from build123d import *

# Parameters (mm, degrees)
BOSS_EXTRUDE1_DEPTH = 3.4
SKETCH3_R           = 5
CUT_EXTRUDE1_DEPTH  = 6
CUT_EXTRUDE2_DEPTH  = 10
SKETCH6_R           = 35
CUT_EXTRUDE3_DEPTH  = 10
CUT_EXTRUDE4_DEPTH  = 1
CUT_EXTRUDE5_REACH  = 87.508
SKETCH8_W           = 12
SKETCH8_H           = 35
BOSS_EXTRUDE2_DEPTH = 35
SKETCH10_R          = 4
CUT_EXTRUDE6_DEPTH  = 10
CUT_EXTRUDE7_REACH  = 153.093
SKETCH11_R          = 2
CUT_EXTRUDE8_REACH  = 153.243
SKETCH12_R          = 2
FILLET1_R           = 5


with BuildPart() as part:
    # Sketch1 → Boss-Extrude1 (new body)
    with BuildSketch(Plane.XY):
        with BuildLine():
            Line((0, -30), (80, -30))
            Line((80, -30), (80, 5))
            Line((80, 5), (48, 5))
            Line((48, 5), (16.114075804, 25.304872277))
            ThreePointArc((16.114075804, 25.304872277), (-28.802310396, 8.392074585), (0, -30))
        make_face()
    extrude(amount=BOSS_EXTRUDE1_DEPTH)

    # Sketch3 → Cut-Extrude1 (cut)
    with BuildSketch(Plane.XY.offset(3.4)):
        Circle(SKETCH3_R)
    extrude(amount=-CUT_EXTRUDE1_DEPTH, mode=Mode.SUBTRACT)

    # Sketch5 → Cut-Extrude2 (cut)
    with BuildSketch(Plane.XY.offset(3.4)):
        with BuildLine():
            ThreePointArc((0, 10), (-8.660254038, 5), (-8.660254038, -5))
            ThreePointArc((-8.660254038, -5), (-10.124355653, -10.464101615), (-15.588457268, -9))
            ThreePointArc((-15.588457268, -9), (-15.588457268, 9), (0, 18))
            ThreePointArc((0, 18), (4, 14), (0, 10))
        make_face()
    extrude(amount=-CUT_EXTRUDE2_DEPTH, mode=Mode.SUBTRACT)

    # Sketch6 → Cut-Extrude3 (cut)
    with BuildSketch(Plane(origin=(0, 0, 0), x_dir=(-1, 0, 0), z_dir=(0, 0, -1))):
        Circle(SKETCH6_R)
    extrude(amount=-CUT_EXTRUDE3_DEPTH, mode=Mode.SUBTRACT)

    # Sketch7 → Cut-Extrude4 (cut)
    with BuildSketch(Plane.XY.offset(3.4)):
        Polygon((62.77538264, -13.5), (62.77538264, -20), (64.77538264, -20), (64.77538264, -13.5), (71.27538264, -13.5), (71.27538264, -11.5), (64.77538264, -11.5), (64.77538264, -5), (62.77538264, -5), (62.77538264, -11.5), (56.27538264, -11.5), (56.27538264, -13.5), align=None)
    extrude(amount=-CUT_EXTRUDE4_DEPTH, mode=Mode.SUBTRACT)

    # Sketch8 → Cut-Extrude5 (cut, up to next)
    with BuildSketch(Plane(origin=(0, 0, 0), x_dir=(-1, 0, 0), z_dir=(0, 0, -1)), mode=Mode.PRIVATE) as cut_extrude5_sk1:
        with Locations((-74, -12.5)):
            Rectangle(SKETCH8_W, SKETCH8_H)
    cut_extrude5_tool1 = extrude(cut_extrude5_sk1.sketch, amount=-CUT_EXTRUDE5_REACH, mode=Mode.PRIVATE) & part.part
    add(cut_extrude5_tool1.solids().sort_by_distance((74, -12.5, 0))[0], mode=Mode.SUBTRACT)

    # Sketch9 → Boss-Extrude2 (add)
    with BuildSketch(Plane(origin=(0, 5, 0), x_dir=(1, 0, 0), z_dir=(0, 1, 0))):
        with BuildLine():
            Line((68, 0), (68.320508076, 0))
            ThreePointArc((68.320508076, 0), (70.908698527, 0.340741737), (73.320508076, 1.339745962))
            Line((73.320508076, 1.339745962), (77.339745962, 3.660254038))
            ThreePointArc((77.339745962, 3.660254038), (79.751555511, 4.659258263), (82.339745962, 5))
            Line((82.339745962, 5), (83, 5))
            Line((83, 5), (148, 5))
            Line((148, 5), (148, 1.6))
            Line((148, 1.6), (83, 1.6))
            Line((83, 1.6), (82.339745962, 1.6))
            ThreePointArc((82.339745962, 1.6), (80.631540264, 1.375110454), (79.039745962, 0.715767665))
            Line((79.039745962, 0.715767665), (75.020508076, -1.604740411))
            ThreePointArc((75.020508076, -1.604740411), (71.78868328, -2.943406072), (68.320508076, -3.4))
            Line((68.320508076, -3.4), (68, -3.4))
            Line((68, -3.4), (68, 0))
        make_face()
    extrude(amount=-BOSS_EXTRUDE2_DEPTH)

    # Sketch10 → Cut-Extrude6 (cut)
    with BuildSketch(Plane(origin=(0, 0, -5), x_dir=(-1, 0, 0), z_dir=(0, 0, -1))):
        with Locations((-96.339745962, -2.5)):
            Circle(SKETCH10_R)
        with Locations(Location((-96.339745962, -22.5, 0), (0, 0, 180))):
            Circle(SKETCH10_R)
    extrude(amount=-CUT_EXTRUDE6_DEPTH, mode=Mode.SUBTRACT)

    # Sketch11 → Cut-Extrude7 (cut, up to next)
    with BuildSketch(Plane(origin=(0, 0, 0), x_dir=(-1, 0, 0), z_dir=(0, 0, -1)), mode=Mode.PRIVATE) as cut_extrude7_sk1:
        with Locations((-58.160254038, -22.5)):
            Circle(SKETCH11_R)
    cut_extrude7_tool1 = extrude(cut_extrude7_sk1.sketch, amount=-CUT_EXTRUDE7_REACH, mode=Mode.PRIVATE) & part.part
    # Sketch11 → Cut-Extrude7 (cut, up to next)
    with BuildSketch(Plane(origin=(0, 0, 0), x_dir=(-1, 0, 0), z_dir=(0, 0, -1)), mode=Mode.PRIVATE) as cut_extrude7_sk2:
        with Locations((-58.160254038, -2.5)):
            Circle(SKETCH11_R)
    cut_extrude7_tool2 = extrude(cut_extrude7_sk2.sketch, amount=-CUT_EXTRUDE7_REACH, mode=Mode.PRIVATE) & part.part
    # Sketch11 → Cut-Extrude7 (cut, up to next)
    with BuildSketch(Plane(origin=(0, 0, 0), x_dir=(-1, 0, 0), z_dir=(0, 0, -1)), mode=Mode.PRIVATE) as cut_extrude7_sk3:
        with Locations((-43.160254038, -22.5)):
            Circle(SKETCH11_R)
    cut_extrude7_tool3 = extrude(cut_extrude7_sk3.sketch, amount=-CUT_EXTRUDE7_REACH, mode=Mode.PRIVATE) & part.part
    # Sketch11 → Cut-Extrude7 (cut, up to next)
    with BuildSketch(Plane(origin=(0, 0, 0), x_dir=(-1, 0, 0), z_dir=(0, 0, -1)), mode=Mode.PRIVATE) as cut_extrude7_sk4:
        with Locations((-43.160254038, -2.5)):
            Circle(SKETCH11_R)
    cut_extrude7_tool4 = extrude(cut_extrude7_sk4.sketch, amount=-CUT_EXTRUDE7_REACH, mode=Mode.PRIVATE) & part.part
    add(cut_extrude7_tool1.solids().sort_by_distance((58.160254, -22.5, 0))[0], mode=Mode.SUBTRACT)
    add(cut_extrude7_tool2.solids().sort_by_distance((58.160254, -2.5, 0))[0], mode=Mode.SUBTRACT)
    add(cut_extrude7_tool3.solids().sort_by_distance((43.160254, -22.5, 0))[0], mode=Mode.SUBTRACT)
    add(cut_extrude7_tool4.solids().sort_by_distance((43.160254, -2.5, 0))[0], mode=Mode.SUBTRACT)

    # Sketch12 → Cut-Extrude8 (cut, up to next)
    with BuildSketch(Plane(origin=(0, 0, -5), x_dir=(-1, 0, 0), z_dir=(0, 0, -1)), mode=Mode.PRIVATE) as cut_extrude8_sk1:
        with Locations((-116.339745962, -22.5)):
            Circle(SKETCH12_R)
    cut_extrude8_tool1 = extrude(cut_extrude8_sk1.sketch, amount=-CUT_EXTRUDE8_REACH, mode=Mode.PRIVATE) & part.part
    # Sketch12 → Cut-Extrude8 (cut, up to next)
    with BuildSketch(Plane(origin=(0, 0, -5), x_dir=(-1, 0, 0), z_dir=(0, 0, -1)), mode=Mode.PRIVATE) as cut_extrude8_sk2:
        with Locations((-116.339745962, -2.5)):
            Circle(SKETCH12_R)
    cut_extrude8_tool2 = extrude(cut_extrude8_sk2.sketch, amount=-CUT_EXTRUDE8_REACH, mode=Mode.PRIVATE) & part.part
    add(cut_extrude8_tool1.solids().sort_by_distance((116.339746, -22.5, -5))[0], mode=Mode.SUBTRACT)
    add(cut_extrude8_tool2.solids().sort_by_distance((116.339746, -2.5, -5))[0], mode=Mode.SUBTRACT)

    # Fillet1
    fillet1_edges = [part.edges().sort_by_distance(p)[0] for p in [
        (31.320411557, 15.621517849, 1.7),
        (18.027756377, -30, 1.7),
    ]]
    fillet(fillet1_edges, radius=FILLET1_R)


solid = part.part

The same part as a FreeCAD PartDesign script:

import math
import FreeCAD as App
import Part
import Sketcher

V = App.Vector
Q = App.Units.Quantity


def edges_at(feature, points):
    """Names of the edges that pass closest to the given points."""
    edges = feature.Shape.Edges
    near = lambda p: min(range(len(edges)), key=lambda i: edges[i].distToShape(Part.Vertex(*p))[0])
    return sorted({f"Edge{near(p) + 1}" for p in points})

doc = App.newDocument("Part")
body = doc.addObject("PartDesign::Body", "Body")

sketch1 = body.newObject("Sketcher::SketchObject", "Sketch")
sketch1.AttachmentSupport = (doc.getObject("XY_Plane"), [""])
sketch1.MapMode = "FlatFace"
sketch1.addGeometry([
    Part.LineSegment(V(0, -30, 0), V(80, -30, 0)),
    Part.LineSegment(V(80, -30, 0), V(80, 5, 0)),
    Part.LineSegment(V(80, 5, 0), V(48, 5, 0)),
    Part.LineSegment(V(48, 5, 0), V(16, 25, 0)),
    Part.ArcOfCircle(Part.Circle(V(0, 0, 0), V(0, 0, 1), 30), math.radians(58), math.radians(270)),
], False)
sketch1.addConstraint([
    Sketcher.Constraint("Coincident", 0, 2, 1, 1),
    Sketcher.Constraint("Coincident", 1, 2, 2, 1),
    Sketcher.Constraint("Coincident", 2, 2, 3, 1),
    Sketcher.Constraint("Tangent", 3, 2, 4, 1),
    Sketcher.Constraint("Tangent", 4, 2, 0, 1),
    Sketcher.Constraint("Horizontal", 0),
    Sketcher.Constraint("Vertical", 1),
    Sketcher.Constraint("Horizontal", 2),
    Sketcher.Constraint("Coincident", 4, 3, -1, 1),
    Sketcher.Constraint("Radius", 4, 30.0),
    Sketcher.Constraint("DistanceX", 0, 1, 0, 2, 80.0),
    Sketcher.Constraint("DistanceX", 2, 2, 2, 1, 32.0),
    Sketcher.Constraint("DistanceY", 1, 1, 1, 2, 35.0),
])
pad1 = body.newObject("PartDesign::Pad", "Pad")
pad1.Profile = sketch1
pad1.Length = 3.4

sketch2 = body.newObject("Sketcher::SketchObject", "Sketch001")
sketch2.AttachmentSupport = (doc.getObject("XY_Plane"), [""])
sketch2.MapMode = "FlatFace"
sketch2.AttachmentOffset = App.Placement(V(0, 0, 3.4), App.Rotation())
sketch2.addGeometry(Part.Circle(V(0, 0, 0), V(0, 0, 1), 5), False)
sketch2.addConstraint([
    Sketcher.Constraint("Coincident", 0, 3, -1, 1),
    Sketcher.Constraint("Diameter", 0, 10.0),
])
pocket1 = body.newObject("PartDesign::Pocket", "Pocket")
pocket1.Profile = sketch2
pocket1.Length = 6

sketch3 = body.newObject("Sketcher::SketchObject", "Sketch002")
sketch3.AttachmentSupport = (doc.getObject("XY_Plane"), [""])
sketch3.MapMode = "FlatFace"
sketch3.AttachmentOffset = App.Placement(V(0, 0, 3.4), App.Rotation())
sketch3.addGeometry([
    Part.ArcOfCircle(Part.Circle(V(0, 0, 0), V(0, 0, 1), 10), math.radians(90), math.radians(210)),
    Part.ArcOfCircle(Part.Circle(V(0, 14, 0), V(0, 0, 1), 4), math.radians(-90), math.radians(90)),
    Part.ArcOfCircle(Part.Circle(V(0, 0, 0), V(0, 0, 1), 18), math.radians(90), math.radians(210)),
    Part.ArcOfCircle(Part.Circle(V(-12.1, -7, 0), V(0, 0, 1), 4), math.radians(-150), math.radians(30)),
], False)
sketch3.addConstraint([
    Sketcher.Constraint("Tangent", 0, 1, 1, 1),
    Sketcher.Constraint("Tangent", 1, 2, 2, 1),
    Sketcher.Constraint("Tangent", 2, 2, 3, 1),
    Sketcher.Constraint("Tangent", 3, 2, 0, 2),
    Sketcher.Constraint("Coincident", 0, 3, -1, 1),
    Sketcher.Constraint("Coincident", 2, 3, -1, 1),
    Sketcher.Constraint("PointOnObject", 1, 3, -2),
    Sketcher.Constraint("Radius", 0, 10.0),
    Sketcher.Constraint("Radius", 1, 4.0),
    Sketcher.Constraint("DistanceY", 3, 3, -1, 1, 7.0),
])
pocket2 = body.newObject("PartDesign::Pocket", "Pocket001")
pocket2.Profile = sketch3
pocket2.Length = 10

sketch4 = body.newObject("Sketcher::SketchObject", "Sketch003")
sketch4.AttachmentSupport = (doc.getObject("XY_Plane"), [""])
sketch4.MapMode = "FlatFace"
sketch4.addGeometry(Part.Circle(V(0, 0, 0), V(0, 0, 1), 35), False)
sketch4.addConstraint([
    Sketcher.Constraint("Coincident", 0, 3, -1, 1),
    Sketcher.Constraint("Diameter", 0, 70.0),
])
pocket3 = body.newObject("PartDesign::Pocket", "Pocket002")
pocket3.Profile = sketch4
pocket3.Length = 10
pocket3.Reversed = True

sketch5 = body.newObject("Sketcher::SketchObject", "Sketch004")
sketch5.AttachmentSupport = (doc.getObject("XY_Plane"), [""])
sketch5.MapMode = "FlatFace"
sketch5.AttachmentOffset = App.Placement(V(0, 0, 3.4), App.Rotation())
sketch5.addGeometry([
    Part.LineSegment(V(62.8, -13.5, 0), V(62.8, -20, 0)),
    Part.LineSegment(V(62.8, -20, 0), V(64.8, -20, 0)),
    Part.LineSegment(V(64.8, -20, 0), V(64.8, -13.5, 0)),
    Part.LineSegment(V(64.8, -13.5, 0), V(71.3, -13.5, 0)),
    Part.LineSegment(V(71.3, -13.5, 0), V(71.3, -11.5, 0)),
    Part.LineSegment(V(71.3, -11.5, 0), V(64.8, -11.5, 0)),
    Part.LineSegment(V(64.8, -11.5, 0), V(64.8, -5, 0)),
    Part.LineSegment(V(64.8, -5, 0), V(62.8, -5, 0)),
    Part.LineSegment(V(62.8, -5, 0), V(62.8, -11.5, 0)),
    Part.LineSegment(V(62.8, -11.5, 0), V(56.3, -11.5, 0)),
    Part.LineSegment(V(56.3, -11.5, 0), V(56.3, -13.5, 0)),
    Part.LineSegment(V(56.3, -13.5, 0), V(62.8, -13.5, 0)),
], False)
sketch5.addConstraint([
    Sketcher.Constraint("Coincident", 0, 2, 1, 1),
    Sketcher.Constraint("Coincident", 1, 2, 2, 1),
    Sketcher.Constraint("Coincident", 2, 2, 3, 1),
    Sketcher.Constraint("Coincident", 3, 2, 4, 1),
    Sketcher.Constraint("Coincident", 4, 2, 5, 1),
    Sketcher.Constraint("Coincident", 5, 2, 6, 1),
    Sketcher.Constraint("Coincident", 6, 2, 7, 1),
    Sketcher.Constraint("Coincident", 7, 2, 8, 1),
    Sketcher.Constraint("Coincident", 8, 2, 9, 1),
    Sketcher.Constraint("Coincident", 9, 2, 10, 1),
    Sketcher.Constraint("Coincident", 10, 2, 11, 1),
    Sketcher.Constraint("Coincident", 11, 2, 0, 1),
    Sketcher.Constraint("Vertical", 0),
    Sketcher.Constraint("Horizontal", 1),
    Sketcher.Constraint("Vertical", 2),
    Sketcher.Constraint("Horizontal", 3),
    Sketcher.Constraint("Vertical", 4),
    Sketcher.Constraint("Horizontal", 5),
    Sketcher.Constraint("Vertical", 6),
    Sketcher.Constraint("Horizontal", 7),
    Sketcher.Constraint("Vertical", 8),
    Sketcher.Constraint("Horizontal", 9),
    Sketcher.Constraint("Vertical", 10),
    Sketcher.Constraint("Horizontal", 11),
    Sketcher.Constraint("Horizontal", 5, 2, 8, 2),
    Sketcher.Constraint("Horizontal", 3, 2, 10, 2),
    Sketcher.Constraint("Vertical", 2, 2, 5, 2),
    Sketcher.Constraint("Vertical", 0, 2, 7, 2),
    Sketcher.Constraint("Equal", 5, 9),
    Sketcher.Constraint("Equal", 11, 0),
    Sketcher.Constraint("Equal", 7, 4),
    Sketcher.Constraint("Equal", 2, 6),
    Sketcher.Constraint("DistanceX", 1, 1, 1, 2, 2.0),
    Sketcher.Constraint("DistanceX", 3, 1, 3, 2, 6.5),
    Sketcher.Constraint("DistanceY", 0, 2, -1, 1, 20.0),
    Sketcher.Constraint("DistanceX", -1, 1, 0, 2, 62.775383),
])
pocket4 = body.newObject("PartDesign::Pocket", "Pocket003")
pocket4.Profile = sketch5
pocket4.Length = 1

sketch6 = body.newObject("Sketcher::SketchObject", "Sketch005")
sketch6.AttachmentSupport = (doc.getObject("XY_Plane"), [""])
sketch6.MapMode = "FlatFace"
sketch6.addGeometry([
    Part.LineSegment(V(80, 5, 0), V(80, -30, 0)),
    Part.LineSegment(V(80, -30, 0), V(68, -30, 0)),
    Part.LineSegment(V(68, -30, 0), V(68, 5, 0)),
    Part.LineSegment(V(68, 5, 0), V(80, 5, 0)),
], False)
sketch6.addConstraint([
    Sketcher.Constraint("Coincident", 0, 2, 1, 1),
    Sketcher.Constraint("Coincident", 1, 2, 2, 1),
    Sketcher.Constraint("Coincident", 2, 2, 3, 1),
    Sketcher.Constraint("Coincident", 3, 2, 0, 1),
    Sketcher.Constraint("Vertical", 0),
    Sketcher.Constraint("Horizontal", 1),
    Sketcher.Constraint("Vertical", 2),
    Sketcher.Constraint("Horizontal", 3),
    Sketcher.Constraint("DistanceX", 1, 2, 1, 1, 12.0),
    Sketcher.Constraint("DistanceY", 0, 2, 0, 1, 35.0),
    Sketcher.Constraint("DistanceX", -1, 1, 0, 2, 80.0),
    Sketcher.Constraint("DistanceY", 0, 2, -1, 1, 30.0),
])
pocket5 = body.newObject("PartDesign::Pocket", "Pocket004")
pocket5.Profile = sketch6
pocket5.Type = "UpToFirst"
pocket5.Reversed = True

sketch7 = body.newObject("Sketcher::SketchObject", "Sketch006")
sketch7.AttachmentSupport = (doc.getObject("XZ_Plane"), [""])
sketch7.MapMode = "FlatFace"
sketch7.AttachmentOffset = App.Placement(V(0, 0, -5), App.Rotation())
sketch7.addGeometry([
    Part.LineSegment(V(68.32, 0, 0), V(68, 0, 0)),
    Part.LineSegment(V(68, 0, 0), V(68, 3.4, 0)),
    Part.LineSegment(V(68, 3.4, 0), V(68.32, 3.4, 0)),
    Part.ArcOfCircle(Part.Circle(V(68.32, -10, 0), V(0, 0, 1), 13.4), math.radians(60), math.radians(90)),
    Part.LineSegment(V(75.02, 1.6, 0), V(79.04, -0.72, 0)),
    Part.ArcOfCircle(Part.Circle(V(82.34, 5, 0), V(0, 0, 1), 6.6), math.radians(-120), math.radians(-90)),
    Part.LineSegment(V(82.34, -1.6, 0), V(148, -1.6, 0)),
    Part.LineSegment(V(148, -1.6, 0), V(148, -5, 0)),
    Part.LineSegment(V(148, -5, 0), V(82.34, -5, 0)),
    Part.ArcOfCircle(Part.Circle(V(82.34, 5, 0), V(0, 0, 1), 10), math.radians(-120), math.radians(-90)),
    Part.LineSegment(V(77.34, -3.66, 0), V(73.32, -1.34, 0)),
    Part.ArcOfCircle(Part.Circle(V(68.32, -10, 0), V(0, 0, 1), 10), math.radians(60), math.radians(90)),
], False)
sketch7.addConstraint([
    Sketcher.Constraint("Coincident", 0, 2, 1, 1),
    Sketcher.Constraint("Coincident", 1, 2, 2, 1),
    Sketcher.Constraint("Tangent", 2, 2, 3, 2),
    Sketcher.Constraint("Tangent", 3, 1, 4, 1),
    Sketcher.Constraint("Tangent", 4, 2, 5, 1),
    Sketcher.Constraint("Tangent", 5, 2, 6, 1),
    Sketcher.Constraint("Coincident", 6, 2, 7, 1),
    Sketcher.Constraint("Coincident", 7, 2, 8, 1),
    Sketcher.Constraint("Tangent", 8, 2, 9, 2),
    Sketcher.Constraint("Tangent", 9, 1, 10, 1),
    Sketcher.Constraint("Tangent", 10, 2, 11, 1),
    Sketcher.Constraint("Tangent", 11, 2, 0, 1),
    Sketcher.Constraint("Horizontal", 0),
    Sketcher.Constraint("Vertical", 1),
    Sketcher.Constraint("Horizontal", 2),
    Sketcher.Constraint("Horizontal", 6),
    Sketcher.Constraint("Vertical", 7),
    Sketcher.Constraint("Horizontal", 8),
    Sketcher.Constraint("Coincident", 9, 3, 5, 3),
    Sketcher.Constraint("Coincident", 11, 3, 3, 3),
    Sketcher.Constraint("Equal", 9, 11),
    Sketcher.Constraint("PointOnObject", 0, 2, -1),
    Sketcher.Constraint("Parallel", 4, 10),
    Sketcher.Constraint("Radius", 9, 10.0),
    Sketcher.Constraint("Radius", 3, 13.4),
    Sketcher.Constraint("Angle", 4, Q("-30 deg")),
    Sketcher.Constraint("DistanceY", -1, 1, 5, 3, 5.0),
    Sketcher.Constraint("DistanceX", -1, 1, 0, 2, 68.0),
    Sketcher.Constraint("DistanceX", -1, 1, 6, 2, 148.0),
    Sketcher.Constraint("DistanceX", 0, 2, 0, 1, 0.320508),
])
pad2 = body.newObject("PartDesign::Pad", "Pad001")
pad2.Profile = sketch7
pad2.Length = 35

sketch8 = body.newObject("Sketcher::SketchObject", "Sketch007")
sketch8.AttachmentSupport = (doc.getObject("XY_Plane"), [""])
sketch8.MapMode = "FlatFace"
sketch8.AttachmentOffset = App.Placement(V(0, 0, -5), App.Rotation())
sketch8.addGeometry([
    Part.Circle(V(96.3, -2.5, 0), V(0, 0, 1), 4),
    Part.Circle(V(96.3, -22.5, 0), V(0, 0, 1), 4),
], False)
sketch8.addConstraint([
    Sketcher.Constraint("Equal", 0, 1),
    Sketcher.Constraint("Vertical", 0, 3, 1, 3),
    Sketcher.Constraint("Diameter", 0, 8.0),
    Sketcher.Constraint("DistanceY", 1, 3, 0, 3, 20.0),
    Sketcher.Constraint("DistanceY", 0, 3, -1, 1, 2.5),
    Sketcher.Constraint("DistanceX", -1, 1, 0, 3, 96.339746),
])
pocket6 = body.newObject("PartDesign::Pocket", "Pocket005")
pocket6.Profile = sketch8
pocket6.Length = 10
pocket6.Reversed = True

sketch9 = body.newObject("Sketcher::SketchObject", "Sketch008")
sketch9.AttachmentSupport = (doc.getObject("XY_Plane"), [""])
sketch9.MapMode = "FlatFace"
sketch9.addGeometry(Part.Circle(V(58.2, -22.5, 0), V(0, 0, 1), 2), False)
sketch9.addConstraint([
    Sketcher.Constraint("Diameter", 0, 4.0),
    Sketcher.Constraint("DistanceY", 0, 3, -1, 1, 22.5),
    Sketcher.Constraint("DistanceX", -1, 1, 0, 3, 58.160254),
])
pocket7 = body.newObject("PartDesign::Pocket", "Pocket006")
pocket7.Profile = sketch9
pocket7.Type = "UpToFirst"
pocket7.Reversed = True

sketch10 = body.newObject("Sketcher::SketchObject", "Sketch009")
sketch10.AttachmentSupport = (doc.getObject("XY_Plane"), [""])
sketch10.MapMode = "FlatFace"
sketch10.addGeometry(Part.Circle(V(58.2, -2.5, 0), V(0, 0, 1), 2), False)
sketch10.addConstraint([
    Sketcher.Constraint("Diameter", 0, 4.0),
    Sketcher.Constraint("DistanceY", 0, 3, -1, 1, 2.5),
    Sketcher.Constraint("DistanceX", -1, 1, 0, 3, 58.160254),
])
pocket8 = body.newObject("PartDesign::Pocket", "Pocket007")
pocket8.Profile = sketch10
pocket8.Type = "UpToFirst"
pocket8.Reversed = True

sketch11 = body.newObject("Sketcher::SketchObject", "Sketch010")
sketch11.AttachmentSupport = (doc.getObject("XY_Plane"), [""])
sketch11.MapMode = "FlatFace"
sketch11.addGeometry(Part.Circle(V(43.2, -22.5, 0), V(0, 0, 1), 2), False)
sketch11.addConstraint([
    Sketcher.Constraint("Diameter", 0, 4.0),
    Sketcher.Constraint("DistanceY", 0, 3, -1, 1, 22.5),
    Sketcher.Constraint("DistanceX", -1, 1, 0, 3, 43.160254),
])
pocket9 = body.newObject("PartDesign::Pocket", "Pocket008")
pocket9.Profile = sketch11
pocket9.Type = "UpToFirst"
pocket9.Reversed = True

sketch12 = body.newObject("Sketcher::SketchObject", "Sketch011")
sketch12.AttachmentSupport = (doc.getObject("XY_Plane"), [""])
sketch12.MapMode = "FlatFace"
sketch12.addGeometry(Part.Circle(V(43.2, -2.5, 0), V(0, 0, 1), 2), False)
sketch12.addConstraint([
    Sketcher.Constraint("Diameter", 0, 4.0),
    Sketcher.Constraint("DistanceY", 0, 3, -1, 1, 2.5),
    Sketcher.Constraint("DistanceX", -1, 1, 0, 3, 43.160254),
])
pocket10 = body.newObject("PartDesign::Pocket", "Pocket009")
pocket10.Profile = sketch12
pocket10.Type = "UpToFirst"
pocket10.Reversed = True

sketch13 = body.newObject("Sketcher::SketchObject", "Sketch012")
sketch13.AttachmentSupport = (doc.getObject("XY_Plane"), [""])
sketch13.MapMode = "FlatFace"
sketch13.AttachmentOffset = App.Placement(V(0, 0, -5), App.Rotation())
sketch13.addGeometry(Part.Circle(V(116.3, -22.5, 0), V(0, 0, 1), 2), False)
sketch13.addConstraint([
    Sketcher.Constraint("Diameter", 0, 4.0),
    Sketcher.Constraint("DistanceY", 0, 3, -1, 1, 22.5),
    Sketcher.Constraint("DistanceX", -1, 1, 0, 3, 116.339746),
])
pocket11 = body.newObject("PartDesign::Pocket", "Pocket010")
pocket11.Profile = sketch13
pocket11.Type = "UpToFirst"
pocket11.Reversed = True

sketch14 = body.newObject("Sketcher::SketchObject", "Sketch013")
sketch14.AttachmentSupport = (doc.getObject("XY_Plane"), [""])
sketch14.MapMode = "FlatFace"
sketch14.AttachmentOffset = App.Placement(V(0, 0, -5), App.Rotation())
sketch14.addGeometry(Part.Circle(V(116.3, -2.5, 0), V(0, 0, 1), 2), False)
sketch14.addConstraint([
    Sketcher.Constraint("Diameter", 0, 4.0),
    Sketcher.Constraint("DistanceY", 0, 3, -1, 1, 2.5),
    Sketcher.Constraint("DistanceX", -1, 1, 0, 3, 116.339746),
])
pocket12 = body.newObject("PartDesign::Pocket", "Pocket011")
pocket12.Profile = sketch14
pocket12.Type = "UpToFirst"
pocket12.Reversed = True
doc.recompute()

fillet = body.newObject("PartDesign::Fillet", "Fillet")
fillet.Base = (pocket12, edges_at(pocket12, [(31.32, 15.622, 1.7), (18.028, -30, 1.7)]))
fillet.Radius = 5

doc.recompute()
